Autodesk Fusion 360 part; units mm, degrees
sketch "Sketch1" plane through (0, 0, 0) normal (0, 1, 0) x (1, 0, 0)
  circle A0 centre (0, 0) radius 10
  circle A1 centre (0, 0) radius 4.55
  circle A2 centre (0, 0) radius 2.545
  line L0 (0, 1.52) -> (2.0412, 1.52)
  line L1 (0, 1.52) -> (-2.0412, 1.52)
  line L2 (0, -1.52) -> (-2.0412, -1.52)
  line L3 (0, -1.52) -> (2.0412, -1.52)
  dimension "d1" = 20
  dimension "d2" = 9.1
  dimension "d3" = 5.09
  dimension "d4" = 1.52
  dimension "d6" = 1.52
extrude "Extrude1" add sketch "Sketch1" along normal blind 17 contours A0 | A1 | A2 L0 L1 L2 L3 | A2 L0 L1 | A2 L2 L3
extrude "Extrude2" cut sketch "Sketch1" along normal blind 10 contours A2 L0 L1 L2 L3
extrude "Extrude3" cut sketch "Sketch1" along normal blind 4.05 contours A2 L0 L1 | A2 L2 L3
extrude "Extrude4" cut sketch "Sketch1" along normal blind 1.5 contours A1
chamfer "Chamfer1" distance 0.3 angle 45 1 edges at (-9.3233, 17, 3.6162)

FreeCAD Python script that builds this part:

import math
import FreeCAD as App
import Part
import Sketcher

V = App.Vector


def edges_at(feature, points):
    """Names of the edges that pass closest to the given points."""
    edges = feature.Shape.Edges
    near = lambda p: min(range(len(edges)), key=lambda i: edges[i].distToShape(Part.Vertex(*p))[0])
    return sorted({f"Edge{near(p) + 1}" for p in points})

doc = App.newDocument("Part")
body = doc.addObject("PartDesign::Body", "Body")

# Sketch on XZ plane
sketch1 = doc.addObject("Sketcher::SketchObject", "Sketch")
body.addObject(sketch1)
sketch1.AttachmentSupport = (doc.XZ_Plane, [""])
sketch1.MapMode = "FlatFace"
sketch1.addGeometry(Part.Circle(V(0, 0, 0), V(0, 0, 1), 10), False)
sketch1.addConstraint(Sketcher.Constraint("Coincident", 0, 3, -1, 1))
sketch1.addConstraint(Sketcher.Constraint("Diameter", 0, 20.0))
pad1 = doc.addObject("PartDesign::Pad", "Pad")
body.addObject(pad1)
pad1.Profile = sketch1
pad1.Length = 17
pad1.Reversed = True

# Sketch on XZ plane
sketch2 = doc.addObject("Sketcher::SketchObject", "Sketch001")
body.addObject(sketch2)
sketch2.AttachmentSupport = (doc.XZ_Plane, [""])
sketch2.MapMode = "FlatFace"
sketch2.addGeometry(Part.ArcOfCircle(Part.Circle(V(0, 0, 0), V(0, 0, 1), 2.5), math.radians(-37), math.radians(37)), False)
sketch2.addGeometry(Part.LineSegment(V(2, -1.5, 0), V(-2, -1.5, 0)), False)
sketch2.addGeometry(Part.ArcOfCircle(Part.Circle(V(0, 0, 0), V(0, 0, 1), 2.5), math.radians(143), math.radians(217)), False)
sketch2.addGeometry(Part.LineSegment(V(-2, 1.5, 0), V(2, 1.5, 0)), False)
sketch2.addConstraint(Sketcher.Constraint("Coincident", 0, 1, 1, 1))
sketch2.addConstraint(Sketcher.Constraint("Coincident", 1, 2, 2, 2))
sketch2.addConstraint(Sketcher.Constraint("Coincident", 2, 1, 3, 1))
sketch2.addConstraint(Sketcher.Constraint("Coincident", 3, 2, 0, 2))
sketch2.addConstraint(Sketcher.Constraint("Horizontal", 1))
sketch2.addConstraint(Sketcher.Constraint("Horizontal", 3))
sketch2.addConstraint(Sketcher.Constraint("Coincident", 0, 3, -1, 1))
sketch2.addConstraint(Sketcher.Constraint("Coincident", 2, 3, -1, 1))
sketch2.addConstraint(Sketcher.Constraint("Equal", 0, 2))
sketch2.addConstraint(Sketcher.Constraint("Vertical", 1, 2, 2, 1))
sketch2.addConstraint(Sketcher.Constraint("Radius", 0, 2.545))
sketch2.addConstraint(Sketcher.Constraint("DistanceY", 0, 1, -1, 1, 1.52))
pocket1 = doc.addObject("PartDesign::Pocket", "Pocket")
body.addObject(pocket1)
pocket1.Profile = sketch2
pocket1.Length = 10

# Sketch on XZ plane
sketch3 = doc.addObject("Sketcher::SketchObject", "Sketch002")
body.addObject(sketch3)
sketch3.AttachmentSupport = (doc.XZ_Plane, [""])
sketch3.MapMode = "FlatFace"
sketch3.addGeometry(Part.LineSegment(V(-2, -1.5, 0), V(2, -1.5, 0)), False)
sketch3.addGeometry(Part.ArcOfCircle(Part.Circle(V(0, 0, 0), V(0, 0, 1), 2.5), math.radians(-143), math.radians(-37)), False)
sketch3.addGeometry(Part.ArcOfCircle(Part.Circle(V(0, 0, 0), V(0, 0, 1), 2.5), math.radians(37), math.radians(143)), False)
sketch3.addGeometry(Part.LineSegment(V(-2, 1.5, 0), V(2, 1.5, 0)), False)
sketch3.addConstraint(Sketcher.Constraint("Coincident", 0, 1, 1, 1))
sketch3.addConstraint(Sketcher.Constraint("Coincident", 1, 2, 0, 2))
sketch3.addConstraint(Sketcher.Constraint("Coincident", 2, 1, 3, 2))
sketch3.addConstraint(Sketcher.Constraint("Coincident", 3, 1, 2, 2))
sketch3.addConstraint(Sketcher.Constraint("Horizontal", 0))
sketch3.addConstraint(Sketcher.Constraint("Horizontal", 3))
sketch3.addConstraint(Sketcher.Constraint("Coincident", 1, 3, -1, 1))
sketch3.addConstraint(Sketcher.Constraint("Coincident", 2, 3, -1, 1))
sketch3.addConstraint(Sketcher.Constraint("Equal", 1, 2))
sketch3.addConstraint(Sketcher.Constraint("Vertical", 1, 2, 2, 1))
sketch3.addConstraint(Sketcher.Constraint("Radius", 1, 2.545))
sketch3.addConstraint(Sketcher.Constraint("DistanceY", 0, 1, -1, 1, 1.52))
pocket2 = doc.addObject("PartDesign::Pocket", "Pocket001")
body.addObject(pocket2)
pocket2.Profile = sketch3
pocket2.Length = 4.05

# Sketch on XZ plane
sketch4 = doc.addObject("Sketcher::SketchObject", "Sketch003")
body.addObject(sketch4)
sketch4.AttachmentSupport = (doc.XZ_Plane, [""])
sketch4.MapMode = "FlatFace"
sketch4.addGeometry(Part.Circle(V(0, 0, 0), V(0, 0, 1), 4.5), False)
sketch4.addGeometry(Part.Circle(V(0, 0, 0), V(0, 0, 1), 2.5), False)
sketch4.addConstraint(Sketcher.Constraint("Coincident", 0, 3, -1, 1))
sketch4.addConstraint(Sketcher.Constraint("Coincident", 1, 3, -1, 1))
sketch4.addConstraint(Sketcher.Constraint("Diameter", 0, 9.1))
sketch4.addConstraint(Sketcher.Constraint("Diameter", 1, 5.09))
pocket3 = doc.addObject("PartDesign::Pocket", "Pocket002")
body.addObject(pocket3)
pocket3.Profile = sketch4
pocket3.Length = 1.5
doc.recompute()

chamfer = doc.addObject("PartDesign::Chamfer", "Chamfer")
body.addObject(chamfer)
chamfer.Base = (pocket3, edges_at(pocket3, [(-9.323, 17, 3.616)]))
chamfer.Size = 0.3

doc.recompute()
